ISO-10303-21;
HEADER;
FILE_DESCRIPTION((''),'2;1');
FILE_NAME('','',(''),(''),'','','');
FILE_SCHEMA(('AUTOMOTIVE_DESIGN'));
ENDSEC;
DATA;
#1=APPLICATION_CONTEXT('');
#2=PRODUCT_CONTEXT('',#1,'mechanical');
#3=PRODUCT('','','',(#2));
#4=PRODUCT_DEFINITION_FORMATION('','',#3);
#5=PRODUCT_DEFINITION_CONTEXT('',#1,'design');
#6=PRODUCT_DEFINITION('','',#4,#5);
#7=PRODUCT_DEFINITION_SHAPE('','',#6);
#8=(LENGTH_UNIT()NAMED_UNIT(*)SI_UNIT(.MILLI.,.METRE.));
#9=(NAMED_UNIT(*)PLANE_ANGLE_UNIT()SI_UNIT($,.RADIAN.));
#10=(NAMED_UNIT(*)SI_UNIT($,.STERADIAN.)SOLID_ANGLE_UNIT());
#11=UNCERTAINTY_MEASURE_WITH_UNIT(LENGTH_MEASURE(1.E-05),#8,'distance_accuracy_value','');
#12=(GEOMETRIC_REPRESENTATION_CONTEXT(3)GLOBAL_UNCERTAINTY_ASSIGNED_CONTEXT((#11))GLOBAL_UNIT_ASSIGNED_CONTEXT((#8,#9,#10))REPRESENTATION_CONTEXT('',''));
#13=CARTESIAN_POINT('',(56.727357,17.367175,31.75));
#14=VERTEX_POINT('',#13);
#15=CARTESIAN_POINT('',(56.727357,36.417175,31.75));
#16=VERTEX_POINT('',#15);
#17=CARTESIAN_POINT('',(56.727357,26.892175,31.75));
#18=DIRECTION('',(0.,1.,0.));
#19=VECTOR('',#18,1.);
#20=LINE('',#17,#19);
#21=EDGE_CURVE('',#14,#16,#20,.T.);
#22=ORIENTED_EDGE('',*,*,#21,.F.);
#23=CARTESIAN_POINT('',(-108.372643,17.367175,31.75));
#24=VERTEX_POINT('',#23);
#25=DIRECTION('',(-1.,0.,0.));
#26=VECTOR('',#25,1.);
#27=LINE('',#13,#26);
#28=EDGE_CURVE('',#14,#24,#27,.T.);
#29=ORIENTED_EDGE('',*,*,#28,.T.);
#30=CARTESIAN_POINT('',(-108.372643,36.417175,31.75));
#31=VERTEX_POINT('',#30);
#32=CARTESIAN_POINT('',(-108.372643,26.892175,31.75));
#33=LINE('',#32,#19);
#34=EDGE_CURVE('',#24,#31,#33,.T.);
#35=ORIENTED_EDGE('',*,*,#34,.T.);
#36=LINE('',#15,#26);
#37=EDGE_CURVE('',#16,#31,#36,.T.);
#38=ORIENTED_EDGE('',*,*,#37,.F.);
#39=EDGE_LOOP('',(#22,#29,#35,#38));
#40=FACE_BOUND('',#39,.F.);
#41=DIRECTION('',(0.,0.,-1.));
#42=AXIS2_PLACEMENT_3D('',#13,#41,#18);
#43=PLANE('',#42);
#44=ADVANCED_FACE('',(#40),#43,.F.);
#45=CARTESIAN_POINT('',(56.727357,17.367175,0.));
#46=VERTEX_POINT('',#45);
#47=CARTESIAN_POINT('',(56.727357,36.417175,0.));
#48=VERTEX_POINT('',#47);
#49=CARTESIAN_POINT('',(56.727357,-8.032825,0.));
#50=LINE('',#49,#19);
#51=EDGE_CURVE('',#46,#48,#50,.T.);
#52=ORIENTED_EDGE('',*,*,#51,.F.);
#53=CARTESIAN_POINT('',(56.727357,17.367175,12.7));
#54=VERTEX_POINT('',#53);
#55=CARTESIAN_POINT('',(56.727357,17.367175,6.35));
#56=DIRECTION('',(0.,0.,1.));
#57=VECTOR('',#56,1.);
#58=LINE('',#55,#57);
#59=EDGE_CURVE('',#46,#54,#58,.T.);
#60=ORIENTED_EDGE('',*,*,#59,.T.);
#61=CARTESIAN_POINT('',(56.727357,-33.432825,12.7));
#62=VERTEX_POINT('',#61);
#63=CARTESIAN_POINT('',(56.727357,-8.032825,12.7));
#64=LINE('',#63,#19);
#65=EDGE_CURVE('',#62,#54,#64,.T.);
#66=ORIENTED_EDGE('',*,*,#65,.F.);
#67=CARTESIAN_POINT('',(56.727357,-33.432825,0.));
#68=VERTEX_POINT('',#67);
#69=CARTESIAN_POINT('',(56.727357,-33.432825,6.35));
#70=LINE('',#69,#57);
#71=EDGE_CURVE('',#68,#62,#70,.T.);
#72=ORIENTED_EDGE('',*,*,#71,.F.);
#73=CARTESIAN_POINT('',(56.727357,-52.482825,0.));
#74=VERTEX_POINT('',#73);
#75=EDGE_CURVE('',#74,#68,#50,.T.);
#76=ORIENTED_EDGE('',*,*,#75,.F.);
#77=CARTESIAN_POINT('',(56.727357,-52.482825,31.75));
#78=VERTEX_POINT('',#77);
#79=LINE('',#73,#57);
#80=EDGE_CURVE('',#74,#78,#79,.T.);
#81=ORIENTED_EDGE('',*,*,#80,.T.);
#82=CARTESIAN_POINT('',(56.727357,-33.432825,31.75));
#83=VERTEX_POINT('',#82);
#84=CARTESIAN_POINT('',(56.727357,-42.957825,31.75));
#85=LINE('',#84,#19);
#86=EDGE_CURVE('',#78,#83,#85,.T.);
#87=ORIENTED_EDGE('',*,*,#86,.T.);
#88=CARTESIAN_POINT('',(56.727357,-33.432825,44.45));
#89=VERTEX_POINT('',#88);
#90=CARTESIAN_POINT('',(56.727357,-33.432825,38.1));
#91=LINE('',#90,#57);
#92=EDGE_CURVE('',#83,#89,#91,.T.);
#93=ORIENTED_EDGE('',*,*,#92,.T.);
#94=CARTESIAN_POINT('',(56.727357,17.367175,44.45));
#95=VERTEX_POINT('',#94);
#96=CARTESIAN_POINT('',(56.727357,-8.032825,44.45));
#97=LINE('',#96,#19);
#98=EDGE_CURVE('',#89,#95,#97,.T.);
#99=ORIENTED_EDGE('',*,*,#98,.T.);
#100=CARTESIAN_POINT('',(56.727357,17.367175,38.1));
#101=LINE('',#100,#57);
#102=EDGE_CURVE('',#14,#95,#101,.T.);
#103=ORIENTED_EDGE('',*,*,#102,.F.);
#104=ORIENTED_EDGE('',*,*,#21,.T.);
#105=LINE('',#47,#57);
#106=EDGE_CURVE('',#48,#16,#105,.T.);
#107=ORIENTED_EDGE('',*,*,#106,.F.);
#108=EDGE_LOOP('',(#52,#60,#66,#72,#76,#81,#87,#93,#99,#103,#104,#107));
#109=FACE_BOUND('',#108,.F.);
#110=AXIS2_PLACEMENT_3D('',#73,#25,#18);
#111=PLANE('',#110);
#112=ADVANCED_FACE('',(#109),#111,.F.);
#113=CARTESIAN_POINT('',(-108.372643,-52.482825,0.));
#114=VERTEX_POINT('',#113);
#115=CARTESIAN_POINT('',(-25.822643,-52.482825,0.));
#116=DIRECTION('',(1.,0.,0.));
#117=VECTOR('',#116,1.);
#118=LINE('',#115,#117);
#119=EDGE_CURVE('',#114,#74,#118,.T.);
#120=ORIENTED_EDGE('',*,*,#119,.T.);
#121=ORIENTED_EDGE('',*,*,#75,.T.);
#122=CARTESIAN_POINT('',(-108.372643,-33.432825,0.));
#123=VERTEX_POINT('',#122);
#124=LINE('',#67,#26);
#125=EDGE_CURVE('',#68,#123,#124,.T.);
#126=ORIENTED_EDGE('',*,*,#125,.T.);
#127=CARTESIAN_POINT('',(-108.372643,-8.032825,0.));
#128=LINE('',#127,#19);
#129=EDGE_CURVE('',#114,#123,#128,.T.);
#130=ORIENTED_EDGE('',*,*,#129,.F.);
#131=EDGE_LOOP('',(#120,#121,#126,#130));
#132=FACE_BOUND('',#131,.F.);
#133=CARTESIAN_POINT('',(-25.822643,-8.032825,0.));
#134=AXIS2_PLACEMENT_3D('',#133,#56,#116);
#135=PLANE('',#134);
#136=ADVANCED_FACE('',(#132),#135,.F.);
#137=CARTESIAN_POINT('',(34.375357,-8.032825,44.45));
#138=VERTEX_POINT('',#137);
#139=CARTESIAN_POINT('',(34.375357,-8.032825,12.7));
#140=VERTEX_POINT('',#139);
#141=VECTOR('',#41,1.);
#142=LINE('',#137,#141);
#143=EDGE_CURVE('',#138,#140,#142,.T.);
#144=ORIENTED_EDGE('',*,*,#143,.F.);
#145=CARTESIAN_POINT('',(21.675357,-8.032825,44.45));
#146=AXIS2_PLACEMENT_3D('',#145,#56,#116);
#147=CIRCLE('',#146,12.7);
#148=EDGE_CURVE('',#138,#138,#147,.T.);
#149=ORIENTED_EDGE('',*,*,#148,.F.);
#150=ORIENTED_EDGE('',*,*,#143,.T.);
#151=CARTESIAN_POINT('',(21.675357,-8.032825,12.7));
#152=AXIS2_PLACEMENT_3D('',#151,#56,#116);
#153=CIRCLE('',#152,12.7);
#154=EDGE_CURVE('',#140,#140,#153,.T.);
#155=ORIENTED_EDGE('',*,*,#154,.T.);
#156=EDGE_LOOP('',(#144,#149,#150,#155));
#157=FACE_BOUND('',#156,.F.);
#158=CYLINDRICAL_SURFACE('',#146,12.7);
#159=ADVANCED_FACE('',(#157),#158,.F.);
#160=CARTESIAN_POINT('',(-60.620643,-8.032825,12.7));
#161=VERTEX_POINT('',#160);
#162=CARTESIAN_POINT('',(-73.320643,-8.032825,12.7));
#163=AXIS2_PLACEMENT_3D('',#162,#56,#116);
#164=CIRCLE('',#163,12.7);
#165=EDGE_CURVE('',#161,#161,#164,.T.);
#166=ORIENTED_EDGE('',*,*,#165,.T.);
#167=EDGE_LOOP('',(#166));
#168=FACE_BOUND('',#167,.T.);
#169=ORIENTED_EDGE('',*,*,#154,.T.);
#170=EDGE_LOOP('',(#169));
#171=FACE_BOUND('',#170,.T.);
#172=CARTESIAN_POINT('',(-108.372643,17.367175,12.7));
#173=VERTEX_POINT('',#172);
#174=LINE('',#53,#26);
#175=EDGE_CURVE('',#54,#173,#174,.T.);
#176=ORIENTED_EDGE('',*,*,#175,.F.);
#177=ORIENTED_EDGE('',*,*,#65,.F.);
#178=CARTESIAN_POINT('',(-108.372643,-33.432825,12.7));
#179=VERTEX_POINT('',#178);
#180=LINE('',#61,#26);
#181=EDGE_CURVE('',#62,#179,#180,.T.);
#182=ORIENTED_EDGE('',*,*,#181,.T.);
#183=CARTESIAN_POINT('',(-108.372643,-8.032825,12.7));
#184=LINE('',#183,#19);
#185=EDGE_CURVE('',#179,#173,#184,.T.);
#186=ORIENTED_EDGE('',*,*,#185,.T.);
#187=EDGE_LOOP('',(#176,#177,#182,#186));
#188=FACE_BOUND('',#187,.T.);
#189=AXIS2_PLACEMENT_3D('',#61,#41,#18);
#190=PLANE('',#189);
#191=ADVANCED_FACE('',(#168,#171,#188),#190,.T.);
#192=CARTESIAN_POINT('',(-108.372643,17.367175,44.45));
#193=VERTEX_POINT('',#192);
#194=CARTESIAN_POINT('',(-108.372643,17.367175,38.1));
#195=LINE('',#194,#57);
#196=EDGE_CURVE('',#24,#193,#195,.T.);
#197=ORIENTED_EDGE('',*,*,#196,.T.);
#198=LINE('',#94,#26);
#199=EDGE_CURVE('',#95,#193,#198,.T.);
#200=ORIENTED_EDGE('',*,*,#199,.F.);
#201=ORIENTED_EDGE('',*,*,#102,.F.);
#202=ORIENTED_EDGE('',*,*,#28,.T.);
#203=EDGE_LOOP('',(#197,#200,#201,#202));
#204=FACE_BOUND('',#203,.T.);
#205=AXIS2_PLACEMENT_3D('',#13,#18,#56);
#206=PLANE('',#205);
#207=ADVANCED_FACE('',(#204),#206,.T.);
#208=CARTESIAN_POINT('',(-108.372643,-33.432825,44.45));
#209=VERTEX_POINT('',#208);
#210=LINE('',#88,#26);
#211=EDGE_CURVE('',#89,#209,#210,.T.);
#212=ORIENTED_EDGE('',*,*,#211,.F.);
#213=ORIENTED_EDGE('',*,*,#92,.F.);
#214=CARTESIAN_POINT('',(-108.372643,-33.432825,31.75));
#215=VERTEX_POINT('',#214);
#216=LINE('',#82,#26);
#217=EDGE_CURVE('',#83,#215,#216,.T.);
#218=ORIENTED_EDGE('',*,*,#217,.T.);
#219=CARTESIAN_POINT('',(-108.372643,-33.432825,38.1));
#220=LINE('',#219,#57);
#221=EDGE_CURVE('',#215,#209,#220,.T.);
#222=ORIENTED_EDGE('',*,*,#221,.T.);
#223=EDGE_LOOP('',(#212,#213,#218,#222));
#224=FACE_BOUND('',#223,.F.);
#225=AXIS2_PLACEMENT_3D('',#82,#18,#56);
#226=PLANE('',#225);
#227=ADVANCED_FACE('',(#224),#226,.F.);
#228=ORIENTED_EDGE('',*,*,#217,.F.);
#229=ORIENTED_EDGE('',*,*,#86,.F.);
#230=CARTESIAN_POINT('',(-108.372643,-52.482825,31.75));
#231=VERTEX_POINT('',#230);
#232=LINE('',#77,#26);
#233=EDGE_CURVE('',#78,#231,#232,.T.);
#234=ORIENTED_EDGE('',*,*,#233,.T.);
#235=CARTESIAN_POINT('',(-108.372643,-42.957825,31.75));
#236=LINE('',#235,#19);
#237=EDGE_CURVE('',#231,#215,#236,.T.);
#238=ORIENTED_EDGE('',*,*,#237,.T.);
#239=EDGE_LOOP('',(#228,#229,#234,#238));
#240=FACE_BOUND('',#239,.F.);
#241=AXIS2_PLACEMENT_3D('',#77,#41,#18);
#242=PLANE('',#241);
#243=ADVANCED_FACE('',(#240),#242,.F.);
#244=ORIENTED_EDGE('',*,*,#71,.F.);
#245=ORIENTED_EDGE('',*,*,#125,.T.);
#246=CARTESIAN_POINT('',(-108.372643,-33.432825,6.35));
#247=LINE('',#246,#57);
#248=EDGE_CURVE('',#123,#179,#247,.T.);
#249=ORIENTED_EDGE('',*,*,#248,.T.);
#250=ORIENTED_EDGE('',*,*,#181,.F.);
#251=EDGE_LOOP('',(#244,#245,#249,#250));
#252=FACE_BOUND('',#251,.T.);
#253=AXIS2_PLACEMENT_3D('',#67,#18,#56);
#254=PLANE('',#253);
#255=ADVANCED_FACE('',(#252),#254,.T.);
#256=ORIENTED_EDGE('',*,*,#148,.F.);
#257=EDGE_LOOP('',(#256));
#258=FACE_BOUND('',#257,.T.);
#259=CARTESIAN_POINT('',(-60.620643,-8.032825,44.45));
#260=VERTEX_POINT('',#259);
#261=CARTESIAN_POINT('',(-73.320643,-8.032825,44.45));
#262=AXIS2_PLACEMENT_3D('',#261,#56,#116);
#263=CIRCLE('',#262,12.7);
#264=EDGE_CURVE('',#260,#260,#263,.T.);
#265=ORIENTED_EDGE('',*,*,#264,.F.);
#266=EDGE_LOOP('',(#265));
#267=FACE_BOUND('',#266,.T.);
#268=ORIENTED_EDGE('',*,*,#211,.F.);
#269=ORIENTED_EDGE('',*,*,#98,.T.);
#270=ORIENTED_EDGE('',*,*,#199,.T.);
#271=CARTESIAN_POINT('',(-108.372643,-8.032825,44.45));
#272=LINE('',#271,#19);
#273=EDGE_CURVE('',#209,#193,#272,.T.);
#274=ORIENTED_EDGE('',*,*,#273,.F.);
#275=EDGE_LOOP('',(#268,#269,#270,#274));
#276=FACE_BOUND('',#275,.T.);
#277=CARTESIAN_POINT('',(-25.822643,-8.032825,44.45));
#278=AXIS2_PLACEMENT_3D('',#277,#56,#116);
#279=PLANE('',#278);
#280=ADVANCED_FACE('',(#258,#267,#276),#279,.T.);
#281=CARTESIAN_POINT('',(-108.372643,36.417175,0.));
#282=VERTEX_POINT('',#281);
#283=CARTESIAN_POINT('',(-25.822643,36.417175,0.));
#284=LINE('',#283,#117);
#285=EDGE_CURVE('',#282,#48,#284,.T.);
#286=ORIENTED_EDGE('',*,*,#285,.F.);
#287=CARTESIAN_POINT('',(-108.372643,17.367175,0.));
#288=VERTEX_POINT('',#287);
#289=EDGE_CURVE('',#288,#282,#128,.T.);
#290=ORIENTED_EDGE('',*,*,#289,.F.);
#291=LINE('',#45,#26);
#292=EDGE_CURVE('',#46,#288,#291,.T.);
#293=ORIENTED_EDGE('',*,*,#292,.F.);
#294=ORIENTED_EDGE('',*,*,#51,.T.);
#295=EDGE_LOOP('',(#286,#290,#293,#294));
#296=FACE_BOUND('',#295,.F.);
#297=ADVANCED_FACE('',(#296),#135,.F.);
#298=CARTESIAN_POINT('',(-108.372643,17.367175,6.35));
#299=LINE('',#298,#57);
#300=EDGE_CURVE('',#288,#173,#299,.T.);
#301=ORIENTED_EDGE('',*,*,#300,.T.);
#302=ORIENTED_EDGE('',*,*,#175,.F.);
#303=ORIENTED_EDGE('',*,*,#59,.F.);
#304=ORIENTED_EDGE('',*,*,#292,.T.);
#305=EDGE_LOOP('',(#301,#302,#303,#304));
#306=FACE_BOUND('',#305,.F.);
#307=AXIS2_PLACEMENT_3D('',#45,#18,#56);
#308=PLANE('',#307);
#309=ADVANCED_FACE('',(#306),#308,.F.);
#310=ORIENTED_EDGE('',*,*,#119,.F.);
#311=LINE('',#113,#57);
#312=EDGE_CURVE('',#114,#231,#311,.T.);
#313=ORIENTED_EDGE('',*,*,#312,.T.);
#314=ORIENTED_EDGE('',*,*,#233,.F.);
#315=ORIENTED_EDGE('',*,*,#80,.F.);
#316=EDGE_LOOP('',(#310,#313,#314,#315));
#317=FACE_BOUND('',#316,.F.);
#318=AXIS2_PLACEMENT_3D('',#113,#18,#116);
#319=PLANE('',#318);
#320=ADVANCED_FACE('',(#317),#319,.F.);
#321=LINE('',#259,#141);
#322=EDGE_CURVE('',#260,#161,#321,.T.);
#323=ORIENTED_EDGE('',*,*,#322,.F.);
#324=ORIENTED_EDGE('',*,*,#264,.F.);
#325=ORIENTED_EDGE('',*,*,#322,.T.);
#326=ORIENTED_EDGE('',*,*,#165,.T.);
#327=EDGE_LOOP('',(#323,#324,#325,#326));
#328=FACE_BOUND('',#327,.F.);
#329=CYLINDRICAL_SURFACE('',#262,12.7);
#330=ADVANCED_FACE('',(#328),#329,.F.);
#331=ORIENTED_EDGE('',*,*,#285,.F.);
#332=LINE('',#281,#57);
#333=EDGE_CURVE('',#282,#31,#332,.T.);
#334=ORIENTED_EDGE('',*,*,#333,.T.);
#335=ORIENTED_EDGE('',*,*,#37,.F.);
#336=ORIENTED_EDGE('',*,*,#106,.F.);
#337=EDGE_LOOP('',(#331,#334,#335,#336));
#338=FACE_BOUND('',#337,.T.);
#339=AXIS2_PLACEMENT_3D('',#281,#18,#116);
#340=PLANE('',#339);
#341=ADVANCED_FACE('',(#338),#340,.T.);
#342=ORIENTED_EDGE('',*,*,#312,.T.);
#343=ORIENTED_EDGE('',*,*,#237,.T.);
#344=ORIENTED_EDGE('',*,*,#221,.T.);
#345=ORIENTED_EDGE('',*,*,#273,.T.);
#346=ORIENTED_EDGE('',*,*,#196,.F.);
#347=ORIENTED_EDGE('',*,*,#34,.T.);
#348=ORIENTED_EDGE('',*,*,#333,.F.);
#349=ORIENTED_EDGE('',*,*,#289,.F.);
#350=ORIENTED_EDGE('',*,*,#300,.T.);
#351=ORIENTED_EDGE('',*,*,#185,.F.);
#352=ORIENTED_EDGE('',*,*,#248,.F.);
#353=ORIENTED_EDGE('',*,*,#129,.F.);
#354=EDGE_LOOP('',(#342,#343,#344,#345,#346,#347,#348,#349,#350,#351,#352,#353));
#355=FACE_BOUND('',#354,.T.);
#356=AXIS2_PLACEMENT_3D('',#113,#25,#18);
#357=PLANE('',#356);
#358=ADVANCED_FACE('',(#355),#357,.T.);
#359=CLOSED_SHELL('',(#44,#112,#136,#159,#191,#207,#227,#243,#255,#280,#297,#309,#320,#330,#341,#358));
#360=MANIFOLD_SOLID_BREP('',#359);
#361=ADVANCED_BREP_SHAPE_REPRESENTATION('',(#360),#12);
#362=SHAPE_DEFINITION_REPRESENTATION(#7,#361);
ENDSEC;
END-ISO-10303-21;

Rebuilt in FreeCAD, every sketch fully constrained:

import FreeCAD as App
import Part
import Sketcher
Q = App.Units.Quantity


def add_polygon(sketch, points):
    """Adds a closed chain of lines whose ends are joined by coincident constraints."""
    first, n = sketch.GeometryCount, len(points)
    for a, b in zip(points, points[1:] + points[:1]):
        sketch.addGeometry(Part.LineSegment(App.Vector(*a, 0), App.Vector(*b, 0)), False)
    for i in range(n):
        sketch.addConstraint(Sketcher.Constraint("Coincident", first + i, 2, first + (i + 1) % n, 1))

doc = App.newDocument("Part")
body = doc.addObject("PartDesign::Body", "Body")

sketch1 = body.newObject("Sketcher::SketchObject", "Sketch")
sketch1.AttachmentSupport = (doc.getObject("XY_Plane"), [""])
sketch1.MapMode = "FlatFace"
add_polygon(sketch1, [(-108.372643, 36.417175), (-108.372643, -52.482825), (56.727357, -52.482825), (56.727357, 36.417175)])
sketch1.addConstraint([
    Sketcher.Constraint("Vertical", 0),
    Sketcher.Constraint("Horizontal", 1),
    Sketcher.Constraint("Vertical", 2),
    Sketcher.Constraint("Horizontal", 3),
    Sketcher.Constraint("DistanceX", 1, 1, 1, 2, Q("6.5 in")),
    Sketcher.Constraint("DistanceY", 0, 2, 0, 1, Q("3.5 in")),
    Sketcher.Constraint("DistanceX", 0, 2, -1, 1, Q("108.372643 mm")),
    Sketcher.Constraint("DistanceY", 0, 2, -1, 1, Q("52.482825 mm")),
])
pad1 = body.newObject("PartDesign::Pad", "Pad")
pad1.Profile = sketch1
pad1.Length = Q("1.75 in")

sketch2 = body.newObject("Sketcher::SketchObject", "Sketch001")
sketch2.AttachmentSupport = (doc.getObject("YZ_Plane"), [""])
sketch2.MapMode = "FlatFace"
sketch2.AttachmentOffset = App.Placement(App.Vector(0, 0, 56.727357), App.Rotation())
add_polygon(sketch2, [(-33.432825, 12.7), (-33.432825, 0), (17.367175, 0), (17.367175, 12.7)])
sketch2.addConstraint([
    Sketcher.Constraint("Vertical", 0),
    Sketcher.Constraint("Horizontal", 1),
    Sketcher.Constraint("Vertical", 2),
    Sketcher.Constraint("Horizontal", 3),
    Sketcher.Constraint("PointOnObject", 0, 2, -1),
    Sketcher.Constraint("DistanceX", 1, 1, 1, 2, Q("2 in")),
    Sketcher.Constraint("DistanceY", 0, 2, 0, 1, Q("0.5 in")),
    Sketcher.Constraint("DistanceX", 0, 2, -1, 1, Q("33.432825 mm")),
])
pocket1 = body.newObject("PartDesign::Pocket", "Pocket")
pocket1.Profile = sketch2
pocket1.Length = Q("6.5 in")

sketch3 = body.newObject("Sketcher::SketchObject", "Sketch002")
sketch3.AttachmentSupport = (doc.getObject("YZ_Plane"), [""])
sketch3.MapMode = "FlatFace"
sketch3.AttachmentOffset = App.Placement(App.Vector(0, 0, 56.727357), App.Rotation())
add_polygon(sketch3, [(-52.482825, 44.45), (-52.482825, 31.75), (-33.432825, 31.75), (-33.432825, 44.45)])
sketch3.addConstraint([
    Sketcher.Constraint("Vertical", 0),
    Sketcher.Constraint("Horizontal", 1),
    Sketcher.Constraint("Vertical", 2),
    Sketcher.Constraint("Horizontal", 3),
    Sketcher.Constraint("DistanceY", 0, 2, 0, 1, Q("0.5 in")),
    Sketcher.Constraint("DistanceX", 1, 1, 1, 2, Q("0.75 in")),
    Sketcher.Constraint("DistanceY", -1, 1, 0, 2, Q("1.25 in")),
    Sketcher.Constraint("DistanceX", 0, 2, -1, 1, Q("52.482825 mm")),
])
pocket2 = body.newObject("PartDesign::Pocket", "Pocket001")
pocket2.Profile = sketch3
pocket2.Length = Q("6.5 in")

sketch4 = body.newObject("Sketcher::SketchObject", "Sketch003")
sketch4.AttachmentSupport = (doc.getObject("YZ_Plane"), [""])
sketch4.MapMode = "FlatFace"
sketch4.AttachmentOffset = App.Placement(App.Vector(0, 0, 56.727357), App.Rotation())
add_polygon(sketch4, [(17.367175, 44.45), (17.367175, 31.75), (36.417175, 31.75), (36.417175, 44.45)])
sketch4.addConstraint([
    Sketcher.Constraint("Vertical", 0),
    Sketcher.Constraint("Horizontal", 1),
    Sketcher.Constraint("Vertical", 2),
    Sketcher.Constraint("Horizontal", 3),
    Sketcher.Constraint("DistanceY", 0, 2, 0, 1, Q("0.5 in")),
    Sketcher.Constraint("DistanceX", 1, 1, 1, 2, Q("0.75 in")),
    Sketcher.Constraint("DistanceY", -1, 1, 0, 2, Q("1.25 in")),
    Sketcher.Constraint("DistanceX", -1, 1, 0, 2, Q("17.367175 mm")),
])
pocket3 = body.newObject("PartDesign::Pocket", "Pocket002")
pocket3.Profile = sketch4
pocket3.Length = Q("6.5 in")

sketch5 = body.newObject("Sketcher::SketchObject", "Sketch004")
sketch5.AttachmentSupport = (doc.getObject("XY_Plane"), [""])
sketch5.MapMode = "FlatFace"
sketch5.AttachmentOffset = App.Placement(App.Vector(0, 0, 1.75 * 25.4), App.Rotation())
sketch5.addGeometry(Part.Circle(App.Vector(-73.320643, -8.032825, 0), App.Vector(0, 0, 1), 12.7), False)
sketch5.addConstraint([
    Sketcher.Constraint("Diameter", 0, Q("1 in")),
    Sketcher.Constraint("DistanceX", 0, 3, -1, 1, Q("73.320643 mm")),
    Sketcher.Constraint("DistanceY", 0, 3, -1, 1, Q("8.032825 mm")),
])
pocket4 = body.newObject("PartDesign::Pocket", "Pocket003")
pocket4.Profile = sketch5
pocket4.Length = Q("1.75 in")

sketch6 = body.newObject("Sketcher::SketchObject", "Sketch005")
sketch6.AttachmentSupport = (doc.getObject("XY_Plane"), [""])
sketch6.MapMode = "FlatFace"
sketch6.AttachmentOffset = App.Placement(App.Vector(0, 0, 1.75 * 25.4), App.Rotation())
sketch6.addGeometry(Part.Circle(App.Vector(21.675357, -8.032825, 0), App.Vector(0, 0, 1), 12.7), False)
sketch6.addConstraint([
    Sketcher.Constraint("Diameter", 0, Q("1 in")),
    Sketcher.Constraint("DistanceX", -1, 1, 0, 3, Q("21.675357 mm")),
    Sketcher.Constraint("DistanceY", 0, 3, -1, 1, Q("8.032825 mm")),
])
pocket5 = body.newObject("PartDesign::Pocket", "Pocket004")
pocket5.Profile = sketch6
pocket5.Length = Q("1.75 in")

doc.recompute()
